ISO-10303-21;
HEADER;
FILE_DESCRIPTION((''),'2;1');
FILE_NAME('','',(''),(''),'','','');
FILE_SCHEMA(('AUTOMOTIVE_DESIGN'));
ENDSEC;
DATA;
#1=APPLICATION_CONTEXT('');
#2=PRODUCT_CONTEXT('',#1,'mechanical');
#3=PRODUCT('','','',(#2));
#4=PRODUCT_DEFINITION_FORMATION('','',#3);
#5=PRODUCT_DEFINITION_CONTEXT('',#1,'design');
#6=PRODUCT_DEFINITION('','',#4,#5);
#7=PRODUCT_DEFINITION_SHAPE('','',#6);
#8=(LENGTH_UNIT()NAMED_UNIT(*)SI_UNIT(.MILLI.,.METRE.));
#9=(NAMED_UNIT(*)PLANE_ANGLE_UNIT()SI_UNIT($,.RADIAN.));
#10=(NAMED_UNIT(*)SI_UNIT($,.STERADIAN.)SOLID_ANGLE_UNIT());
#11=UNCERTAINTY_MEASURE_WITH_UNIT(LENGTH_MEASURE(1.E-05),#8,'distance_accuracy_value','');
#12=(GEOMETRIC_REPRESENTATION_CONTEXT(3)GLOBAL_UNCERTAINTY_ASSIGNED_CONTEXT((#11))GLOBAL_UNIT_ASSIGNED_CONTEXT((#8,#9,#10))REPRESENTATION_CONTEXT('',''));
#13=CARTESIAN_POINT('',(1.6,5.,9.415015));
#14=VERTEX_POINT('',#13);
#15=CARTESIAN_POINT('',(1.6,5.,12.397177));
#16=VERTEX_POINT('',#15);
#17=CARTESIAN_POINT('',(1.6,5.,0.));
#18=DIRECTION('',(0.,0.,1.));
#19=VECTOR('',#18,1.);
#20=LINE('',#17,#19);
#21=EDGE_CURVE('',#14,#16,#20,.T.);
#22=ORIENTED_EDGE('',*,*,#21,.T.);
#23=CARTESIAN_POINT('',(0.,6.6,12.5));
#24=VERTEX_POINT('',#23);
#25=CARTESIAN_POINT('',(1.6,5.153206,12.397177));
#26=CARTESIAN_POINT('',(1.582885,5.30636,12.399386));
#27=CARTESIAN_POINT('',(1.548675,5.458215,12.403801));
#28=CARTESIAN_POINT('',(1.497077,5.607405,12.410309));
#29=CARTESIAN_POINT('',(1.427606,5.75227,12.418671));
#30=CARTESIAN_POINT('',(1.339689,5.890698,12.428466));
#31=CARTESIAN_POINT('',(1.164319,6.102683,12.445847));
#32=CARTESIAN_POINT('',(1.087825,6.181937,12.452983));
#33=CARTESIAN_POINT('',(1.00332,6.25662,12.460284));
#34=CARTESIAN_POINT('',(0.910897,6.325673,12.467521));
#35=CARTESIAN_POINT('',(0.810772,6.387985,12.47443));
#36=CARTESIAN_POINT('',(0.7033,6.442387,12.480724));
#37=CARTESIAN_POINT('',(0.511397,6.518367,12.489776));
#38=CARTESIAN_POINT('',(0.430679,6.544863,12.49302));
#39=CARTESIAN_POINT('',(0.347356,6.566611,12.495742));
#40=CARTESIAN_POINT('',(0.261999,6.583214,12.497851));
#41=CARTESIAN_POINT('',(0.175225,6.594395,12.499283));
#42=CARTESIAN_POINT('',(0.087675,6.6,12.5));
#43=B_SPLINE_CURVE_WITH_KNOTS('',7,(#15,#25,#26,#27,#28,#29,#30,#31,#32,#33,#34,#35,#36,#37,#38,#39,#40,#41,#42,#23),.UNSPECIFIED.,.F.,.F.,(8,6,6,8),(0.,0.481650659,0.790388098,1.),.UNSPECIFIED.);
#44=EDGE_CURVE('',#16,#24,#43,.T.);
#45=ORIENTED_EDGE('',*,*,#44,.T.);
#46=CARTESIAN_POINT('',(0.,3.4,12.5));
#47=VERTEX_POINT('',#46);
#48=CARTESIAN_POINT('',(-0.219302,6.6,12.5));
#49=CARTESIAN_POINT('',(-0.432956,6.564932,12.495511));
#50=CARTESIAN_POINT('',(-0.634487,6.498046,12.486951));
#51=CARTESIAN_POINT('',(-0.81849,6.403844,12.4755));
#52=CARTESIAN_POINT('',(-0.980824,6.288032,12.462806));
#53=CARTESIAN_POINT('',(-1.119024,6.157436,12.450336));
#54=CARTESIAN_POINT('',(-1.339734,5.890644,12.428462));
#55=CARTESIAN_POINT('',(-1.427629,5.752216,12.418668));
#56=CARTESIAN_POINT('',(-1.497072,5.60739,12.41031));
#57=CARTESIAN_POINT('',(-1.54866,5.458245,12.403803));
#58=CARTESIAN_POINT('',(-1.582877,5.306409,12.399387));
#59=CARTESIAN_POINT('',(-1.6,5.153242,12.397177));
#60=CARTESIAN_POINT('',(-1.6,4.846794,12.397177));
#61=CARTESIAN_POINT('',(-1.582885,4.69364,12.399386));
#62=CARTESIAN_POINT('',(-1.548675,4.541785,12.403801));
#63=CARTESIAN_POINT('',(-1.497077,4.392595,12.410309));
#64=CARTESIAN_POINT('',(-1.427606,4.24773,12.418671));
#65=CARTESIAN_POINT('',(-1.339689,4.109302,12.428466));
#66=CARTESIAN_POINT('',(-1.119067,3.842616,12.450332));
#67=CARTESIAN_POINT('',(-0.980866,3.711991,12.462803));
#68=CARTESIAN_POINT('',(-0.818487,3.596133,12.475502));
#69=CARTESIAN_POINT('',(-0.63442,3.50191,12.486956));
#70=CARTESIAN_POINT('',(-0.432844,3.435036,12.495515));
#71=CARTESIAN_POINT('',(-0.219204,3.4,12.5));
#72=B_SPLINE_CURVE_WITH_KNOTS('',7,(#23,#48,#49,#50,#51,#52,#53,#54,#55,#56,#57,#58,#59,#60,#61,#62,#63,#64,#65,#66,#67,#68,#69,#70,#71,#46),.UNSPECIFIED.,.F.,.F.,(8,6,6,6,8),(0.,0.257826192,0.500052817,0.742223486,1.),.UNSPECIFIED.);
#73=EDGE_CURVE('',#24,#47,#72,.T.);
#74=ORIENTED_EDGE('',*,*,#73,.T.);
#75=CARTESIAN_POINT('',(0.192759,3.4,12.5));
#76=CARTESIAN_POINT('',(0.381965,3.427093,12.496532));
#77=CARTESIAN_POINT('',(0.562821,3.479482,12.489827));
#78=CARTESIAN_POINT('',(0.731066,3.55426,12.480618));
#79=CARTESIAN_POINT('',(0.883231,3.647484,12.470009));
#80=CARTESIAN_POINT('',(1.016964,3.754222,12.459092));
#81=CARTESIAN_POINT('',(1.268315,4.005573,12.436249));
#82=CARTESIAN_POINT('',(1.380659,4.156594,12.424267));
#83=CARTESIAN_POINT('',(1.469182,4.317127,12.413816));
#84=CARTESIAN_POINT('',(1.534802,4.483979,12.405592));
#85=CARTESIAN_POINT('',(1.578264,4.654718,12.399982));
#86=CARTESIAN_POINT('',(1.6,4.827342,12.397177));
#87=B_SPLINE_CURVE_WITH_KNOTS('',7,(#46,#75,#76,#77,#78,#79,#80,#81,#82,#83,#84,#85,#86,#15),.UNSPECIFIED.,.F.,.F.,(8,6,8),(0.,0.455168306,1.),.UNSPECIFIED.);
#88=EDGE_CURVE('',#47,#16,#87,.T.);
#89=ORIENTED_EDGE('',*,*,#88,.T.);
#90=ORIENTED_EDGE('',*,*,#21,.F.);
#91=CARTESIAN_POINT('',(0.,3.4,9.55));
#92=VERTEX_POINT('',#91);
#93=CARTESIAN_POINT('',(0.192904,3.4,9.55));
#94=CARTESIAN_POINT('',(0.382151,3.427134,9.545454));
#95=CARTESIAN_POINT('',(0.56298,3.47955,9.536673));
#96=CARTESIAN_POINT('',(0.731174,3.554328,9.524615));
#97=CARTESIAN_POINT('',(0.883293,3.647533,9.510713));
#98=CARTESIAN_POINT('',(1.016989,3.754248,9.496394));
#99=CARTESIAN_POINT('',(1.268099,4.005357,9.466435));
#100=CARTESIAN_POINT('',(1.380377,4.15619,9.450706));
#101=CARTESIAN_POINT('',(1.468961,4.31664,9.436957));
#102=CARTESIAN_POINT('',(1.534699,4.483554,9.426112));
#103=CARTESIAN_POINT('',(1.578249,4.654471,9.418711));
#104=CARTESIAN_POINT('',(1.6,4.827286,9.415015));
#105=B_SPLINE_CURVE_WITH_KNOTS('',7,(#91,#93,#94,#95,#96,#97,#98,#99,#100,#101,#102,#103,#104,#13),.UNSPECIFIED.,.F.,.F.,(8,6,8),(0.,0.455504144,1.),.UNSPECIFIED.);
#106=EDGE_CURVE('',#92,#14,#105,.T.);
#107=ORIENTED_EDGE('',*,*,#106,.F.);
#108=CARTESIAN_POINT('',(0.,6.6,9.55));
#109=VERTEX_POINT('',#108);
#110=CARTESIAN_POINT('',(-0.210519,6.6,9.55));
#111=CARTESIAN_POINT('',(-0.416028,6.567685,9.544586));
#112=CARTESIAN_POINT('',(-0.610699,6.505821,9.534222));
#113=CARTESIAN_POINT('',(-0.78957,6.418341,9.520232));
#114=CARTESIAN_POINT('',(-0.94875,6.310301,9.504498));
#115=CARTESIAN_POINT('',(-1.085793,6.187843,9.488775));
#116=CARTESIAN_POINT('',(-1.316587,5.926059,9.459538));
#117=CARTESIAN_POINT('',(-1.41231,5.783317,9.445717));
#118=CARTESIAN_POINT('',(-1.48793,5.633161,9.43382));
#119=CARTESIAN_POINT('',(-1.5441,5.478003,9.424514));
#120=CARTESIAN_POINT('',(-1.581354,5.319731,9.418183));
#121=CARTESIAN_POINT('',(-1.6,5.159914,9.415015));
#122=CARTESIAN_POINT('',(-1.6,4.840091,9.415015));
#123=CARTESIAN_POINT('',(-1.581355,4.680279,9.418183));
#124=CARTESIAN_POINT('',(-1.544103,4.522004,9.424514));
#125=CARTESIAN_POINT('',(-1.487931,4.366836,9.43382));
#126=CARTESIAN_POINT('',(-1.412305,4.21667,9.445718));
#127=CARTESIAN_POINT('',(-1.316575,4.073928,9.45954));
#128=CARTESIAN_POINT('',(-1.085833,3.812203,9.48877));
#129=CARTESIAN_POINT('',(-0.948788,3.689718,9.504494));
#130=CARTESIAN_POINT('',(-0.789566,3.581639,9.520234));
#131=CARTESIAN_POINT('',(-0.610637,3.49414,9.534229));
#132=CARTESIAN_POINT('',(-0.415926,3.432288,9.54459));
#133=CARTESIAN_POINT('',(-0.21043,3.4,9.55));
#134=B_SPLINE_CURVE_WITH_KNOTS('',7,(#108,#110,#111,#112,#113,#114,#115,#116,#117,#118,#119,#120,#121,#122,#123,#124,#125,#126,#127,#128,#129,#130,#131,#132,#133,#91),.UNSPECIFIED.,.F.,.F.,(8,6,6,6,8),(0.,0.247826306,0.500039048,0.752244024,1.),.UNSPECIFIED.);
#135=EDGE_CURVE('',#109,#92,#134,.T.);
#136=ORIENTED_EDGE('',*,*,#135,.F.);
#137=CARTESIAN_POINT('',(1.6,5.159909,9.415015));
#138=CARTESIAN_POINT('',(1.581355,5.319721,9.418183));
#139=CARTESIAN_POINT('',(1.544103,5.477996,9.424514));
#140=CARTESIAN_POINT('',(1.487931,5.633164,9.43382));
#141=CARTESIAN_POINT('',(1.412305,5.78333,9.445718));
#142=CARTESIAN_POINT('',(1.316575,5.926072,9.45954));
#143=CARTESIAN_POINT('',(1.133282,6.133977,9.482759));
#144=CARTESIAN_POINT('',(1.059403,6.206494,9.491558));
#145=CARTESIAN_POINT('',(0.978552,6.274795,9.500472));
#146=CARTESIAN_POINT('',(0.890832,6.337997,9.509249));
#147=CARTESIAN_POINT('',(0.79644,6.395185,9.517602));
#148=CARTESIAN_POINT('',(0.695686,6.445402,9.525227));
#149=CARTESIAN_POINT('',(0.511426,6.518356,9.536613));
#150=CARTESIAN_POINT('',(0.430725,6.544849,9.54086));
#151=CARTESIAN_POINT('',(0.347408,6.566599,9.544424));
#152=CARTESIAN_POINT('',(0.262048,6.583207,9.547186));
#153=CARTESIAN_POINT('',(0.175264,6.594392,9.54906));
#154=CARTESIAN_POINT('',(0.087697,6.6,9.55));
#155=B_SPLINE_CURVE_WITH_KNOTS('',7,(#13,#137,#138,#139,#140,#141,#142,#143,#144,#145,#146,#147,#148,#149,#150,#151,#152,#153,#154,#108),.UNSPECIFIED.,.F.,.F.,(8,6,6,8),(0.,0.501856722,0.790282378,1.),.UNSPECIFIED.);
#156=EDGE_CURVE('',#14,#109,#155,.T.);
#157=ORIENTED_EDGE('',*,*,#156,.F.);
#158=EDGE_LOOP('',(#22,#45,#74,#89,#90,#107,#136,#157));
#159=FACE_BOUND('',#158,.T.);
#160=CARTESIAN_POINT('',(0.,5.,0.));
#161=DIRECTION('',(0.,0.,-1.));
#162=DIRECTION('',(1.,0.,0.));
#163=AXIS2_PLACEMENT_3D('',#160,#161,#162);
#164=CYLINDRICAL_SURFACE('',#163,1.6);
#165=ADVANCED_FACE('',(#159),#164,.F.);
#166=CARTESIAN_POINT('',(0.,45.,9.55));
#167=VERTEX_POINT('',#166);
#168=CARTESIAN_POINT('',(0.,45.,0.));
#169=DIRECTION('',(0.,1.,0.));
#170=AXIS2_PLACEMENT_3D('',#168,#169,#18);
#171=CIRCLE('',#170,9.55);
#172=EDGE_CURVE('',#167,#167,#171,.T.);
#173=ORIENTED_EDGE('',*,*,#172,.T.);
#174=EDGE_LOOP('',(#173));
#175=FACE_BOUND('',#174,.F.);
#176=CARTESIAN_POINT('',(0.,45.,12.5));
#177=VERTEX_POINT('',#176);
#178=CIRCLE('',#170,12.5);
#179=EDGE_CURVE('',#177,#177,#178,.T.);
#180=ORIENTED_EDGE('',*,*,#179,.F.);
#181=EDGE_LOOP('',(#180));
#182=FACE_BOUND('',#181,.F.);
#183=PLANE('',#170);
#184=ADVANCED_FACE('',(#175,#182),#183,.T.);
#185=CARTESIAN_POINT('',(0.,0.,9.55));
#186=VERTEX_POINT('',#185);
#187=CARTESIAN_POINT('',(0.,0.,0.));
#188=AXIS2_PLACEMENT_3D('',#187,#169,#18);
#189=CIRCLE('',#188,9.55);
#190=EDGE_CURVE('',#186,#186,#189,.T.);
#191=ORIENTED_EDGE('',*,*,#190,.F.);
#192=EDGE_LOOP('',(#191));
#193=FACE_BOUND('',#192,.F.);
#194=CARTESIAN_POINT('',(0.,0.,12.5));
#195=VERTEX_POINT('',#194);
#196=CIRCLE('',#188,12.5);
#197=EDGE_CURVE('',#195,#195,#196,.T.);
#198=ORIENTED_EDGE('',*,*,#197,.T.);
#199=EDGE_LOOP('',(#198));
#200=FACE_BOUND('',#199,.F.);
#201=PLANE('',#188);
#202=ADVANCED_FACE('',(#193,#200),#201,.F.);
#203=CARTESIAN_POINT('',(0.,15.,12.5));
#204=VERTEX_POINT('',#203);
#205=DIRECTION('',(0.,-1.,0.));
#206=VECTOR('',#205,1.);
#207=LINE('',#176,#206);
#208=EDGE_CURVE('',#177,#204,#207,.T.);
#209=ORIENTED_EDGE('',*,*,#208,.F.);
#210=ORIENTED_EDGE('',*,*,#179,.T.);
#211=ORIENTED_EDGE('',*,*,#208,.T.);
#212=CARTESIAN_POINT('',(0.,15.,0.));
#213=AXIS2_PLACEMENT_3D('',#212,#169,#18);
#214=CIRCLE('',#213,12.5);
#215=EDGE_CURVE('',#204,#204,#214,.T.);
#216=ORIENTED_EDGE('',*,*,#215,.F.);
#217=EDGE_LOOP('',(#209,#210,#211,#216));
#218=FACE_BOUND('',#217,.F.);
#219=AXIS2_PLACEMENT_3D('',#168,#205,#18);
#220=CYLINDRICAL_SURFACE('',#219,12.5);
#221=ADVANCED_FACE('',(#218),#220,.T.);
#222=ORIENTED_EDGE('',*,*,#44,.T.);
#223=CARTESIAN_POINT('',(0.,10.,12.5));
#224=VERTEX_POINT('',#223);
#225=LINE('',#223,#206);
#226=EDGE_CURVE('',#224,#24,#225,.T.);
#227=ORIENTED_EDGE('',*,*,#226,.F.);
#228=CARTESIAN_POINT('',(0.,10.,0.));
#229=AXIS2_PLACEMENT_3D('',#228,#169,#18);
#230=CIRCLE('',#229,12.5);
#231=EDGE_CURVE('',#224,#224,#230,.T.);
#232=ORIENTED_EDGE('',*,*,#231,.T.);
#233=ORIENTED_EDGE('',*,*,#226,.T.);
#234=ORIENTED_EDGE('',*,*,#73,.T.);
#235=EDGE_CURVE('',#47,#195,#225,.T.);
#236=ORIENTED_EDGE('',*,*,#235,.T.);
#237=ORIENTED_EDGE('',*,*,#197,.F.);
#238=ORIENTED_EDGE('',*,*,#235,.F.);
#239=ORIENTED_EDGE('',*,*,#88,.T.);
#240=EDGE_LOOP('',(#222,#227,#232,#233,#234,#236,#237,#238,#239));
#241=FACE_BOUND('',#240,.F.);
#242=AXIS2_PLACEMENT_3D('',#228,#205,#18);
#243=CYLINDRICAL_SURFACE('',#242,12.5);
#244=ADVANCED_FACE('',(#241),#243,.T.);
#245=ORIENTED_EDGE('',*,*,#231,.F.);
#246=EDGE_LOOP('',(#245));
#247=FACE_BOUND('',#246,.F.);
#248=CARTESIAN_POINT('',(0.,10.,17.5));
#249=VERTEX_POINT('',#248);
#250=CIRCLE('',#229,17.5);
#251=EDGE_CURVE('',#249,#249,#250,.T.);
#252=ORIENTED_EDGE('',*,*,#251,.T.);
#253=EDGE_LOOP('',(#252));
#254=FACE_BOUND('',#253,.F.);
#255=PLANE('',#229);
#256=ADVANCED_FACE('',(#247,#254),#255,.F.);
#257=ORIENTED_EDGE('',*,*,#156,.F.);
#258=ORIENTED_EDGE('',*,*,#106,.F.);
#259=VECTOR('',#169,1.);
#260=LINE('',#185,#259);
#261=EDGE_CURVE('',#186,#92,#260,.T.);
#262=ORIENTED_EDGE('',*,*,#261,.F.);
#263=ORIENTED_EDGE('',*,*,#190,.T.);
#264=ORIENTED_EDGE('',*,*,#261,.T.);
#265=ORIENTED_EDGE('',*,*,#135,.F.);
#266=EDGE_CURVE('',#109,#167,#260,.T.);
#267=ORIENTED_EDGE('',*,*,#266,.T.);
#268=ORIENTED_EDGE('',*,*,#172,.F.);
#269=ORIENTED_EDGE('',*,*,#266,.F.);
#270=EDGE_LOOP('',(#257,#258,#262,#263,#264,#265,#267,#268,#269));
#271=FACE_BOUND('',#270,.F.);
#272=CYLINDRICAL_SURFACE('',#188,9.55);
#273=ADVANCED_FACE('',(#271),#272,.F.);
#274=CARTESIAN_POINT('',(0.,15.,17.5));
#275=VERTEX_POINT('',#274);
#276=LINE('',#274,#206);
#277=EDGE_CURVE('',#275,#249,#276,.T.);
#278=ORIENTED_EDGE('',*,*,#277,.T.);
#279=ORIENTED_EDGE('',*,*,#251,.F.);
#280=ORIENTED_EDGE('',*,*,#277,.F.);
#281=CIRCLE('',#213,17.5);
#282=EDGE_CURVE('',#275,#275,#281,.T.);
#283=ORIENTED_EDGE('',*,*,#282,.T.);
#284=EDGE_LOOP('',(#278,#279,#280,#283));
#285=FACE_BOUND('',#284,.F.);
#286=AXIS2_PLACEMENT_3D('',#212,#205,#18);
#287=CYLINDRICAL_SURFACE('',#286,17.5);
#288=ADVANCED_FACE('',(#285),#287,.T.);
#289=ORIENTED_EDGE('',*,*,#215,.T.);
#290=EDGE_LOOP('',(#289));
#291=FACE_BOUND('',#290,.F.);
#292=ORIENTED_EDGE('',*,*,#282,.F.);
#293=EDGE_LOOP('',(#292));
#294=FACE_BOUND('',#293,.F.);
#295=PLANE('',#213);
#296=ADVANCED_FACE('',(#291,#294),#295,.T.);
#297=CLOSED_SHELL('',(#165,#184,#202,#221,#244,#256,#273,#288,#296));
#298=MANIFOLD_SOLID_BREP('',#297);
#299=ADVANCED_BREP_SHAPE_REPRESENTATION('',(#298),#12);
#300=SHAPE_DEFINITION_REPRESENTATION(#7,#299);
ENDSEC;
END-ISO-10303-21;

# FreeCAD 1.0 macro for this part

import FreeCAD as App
import Part
import Sketcher

doc = App.newDocument("Part")
body = doc.addObject("PartDesign::Body", "Body")

sketch1 = doc.addObject("Sketcher::SketchObject", "Sketch")
body.addObject(sketch1)
sketch1.AttachmentSupport = (doc.YZ_Plane, [""])
sketch1.MapMode = "FlatFace"
sketch1.addGeometry(Part.LineSegment(App.Vector(0, 12.5, 0), App.Vector(0, 9.6, 0)), False)
sketch1.addGeometry(Part.LineSegment(App.Vector(0, 9.6, 0), App.Vector(45, 9.6, 0)), False)
sketch1.addGeometry(Part.LineSegment(App.Vector(45, 9.6, 0), App.Vector(45, 12.5, 0)), False)
sketch1.addGeometry(Part.LineSegment(App.Vector(45, 12.5, 0), App.Vector(15, 12.5, 0)), False)
sketch1.addGeometry(Part.LineSegment(App.Vector(15, 12.5, 0), App.Vector(15, 17.5, 0)), False)
sketch1.addGeometry(Part.LineSegment(App.Vector(15, 17.5, 0), App.Vector(10, 17.5, 0)), False)
sketch1.addGeometry(Part.LineSegment(App.Vector(10, 17.5, 0), App.Vector(10, 12.5, 0)), False)
sketch1.addGeometry(Part.LineSegment(App.Vector(10, 12.5, 0), App.Vector(0, 12.5, 0)), False)
sketch1.addConstraint(Sketcher.Constraint("Coincident", 0, 2, 1, 1))
sketch1.addConstraint(Sketcher.Constraint("Coincident", 1, 2, 2, 1))
sketch1.addConstraint(Sketcher.Constraint("Coincident", 2, 2, 3, 1))
sketch1.addConstraint(Sketcher.Constraint("Coincident", 3, 2, 4, 1))
sketch1.addConstraint(Sketcher.Constraint("Coincident", 4, 2, 5, 1))
sketch1.addConstraint(Sketcher.Constraint("Coincident", 5, 2, 6, 1))
sketch1.addConstraint(Sketcher.Constraint("Coincident", 6, 2, 7, 1))
sketch1.addConstraint(Sketcher.Constraint("Coincident", 7, 2, 0, 1))
sketch1.addConstraint(Sketcher.Constraint("Vertical", 0))
sketch1.addConstraint(Sketcher.Constraint("Horizontal", 1))
sketch1.addConstraint(Sketcher.Constraint("Vertical", 2))
sketch1.addConstraint(Sketcher.Constraint("Horizontal", 3))
sketch1.addConstraint(Sketcher.Constraint("Vertical", 4))
sketch1.addConstraint(Sketcher.Constraint("Horizontal", 5))
sketch1.addConstraint(Sketcher.Constraint("Vertical", 6))
sketch1.addConstraint(Sketcher.Constraint("Horizontal", 7))
sketch1.addConstraint(Sketcher.Constraint("PointOnObject", 0, 2, -2))
sketch1.addConstraint(Sketcher.Constraint("Horizontal", 3, 2, 6, 2))
sketch1.addConstraint(Sketcher.Constraint("Equal", 5, 4))
sketch1.addConstraint(Sketcher.Constraint("DistanceX", 1, 1, 1, 2, 45.0))
sketch1.addConstraint(Sketcher.Constraint("DistanceX", 3, 2, 3, 1, 30.0))
sketch1.addConstraint(Sketcher.Constraint("DistanceX", 5, 2, 5, 1, 5.0))
sketch1.addConstraint(Sketcher.Constraint("DistanceY", 0, 2, 0, 1, 2.95))
sketch1.addConstraint(Sketcher.Constraint("DistanceY", -1, 1, 2, 2, 12.5))
revolution = doc.addObject("PartDesign::Revolution", "Revolution")
body.addObject(revolution)
revolution.Profile = sketch1
revolution.ReferenceAxis = (sketch1, ["H_Axis"])
revolution.Angle = 360

sketch2 = doc.addObject("Sketcher::SketchObject", "Sketch001")
body.addObject(sketch2)
sketch2.AttachmentSupport = (doc.XY_Plane, [""])
sketch2.MapMode = "FlatFace"
sketch2.addGeometry(Part.Circle(App.Vector(0, 5, 0), App.Vector(0, 0, 1), 1.6), False)
sketch2.addConstraint(Sketcher.Constraint("PointOnObject", 0, 3, -2))
sketch2.addConstraint(Sketcher.Constraint("Diameter", 0, 3.2))
sketch2.addConstraint(Sketcher.Constraint("DistanceY", -1, 1, 0, 3, 5.0))
pocket1 = doc.addObject("PartDesign::Pocket", "Pocket")
body.addObject(pocket1)
pocket1.Profile = sketch2
pocket1.Type = "ThroughAll"
pocket1.Reversed = True

doc.recompute()
